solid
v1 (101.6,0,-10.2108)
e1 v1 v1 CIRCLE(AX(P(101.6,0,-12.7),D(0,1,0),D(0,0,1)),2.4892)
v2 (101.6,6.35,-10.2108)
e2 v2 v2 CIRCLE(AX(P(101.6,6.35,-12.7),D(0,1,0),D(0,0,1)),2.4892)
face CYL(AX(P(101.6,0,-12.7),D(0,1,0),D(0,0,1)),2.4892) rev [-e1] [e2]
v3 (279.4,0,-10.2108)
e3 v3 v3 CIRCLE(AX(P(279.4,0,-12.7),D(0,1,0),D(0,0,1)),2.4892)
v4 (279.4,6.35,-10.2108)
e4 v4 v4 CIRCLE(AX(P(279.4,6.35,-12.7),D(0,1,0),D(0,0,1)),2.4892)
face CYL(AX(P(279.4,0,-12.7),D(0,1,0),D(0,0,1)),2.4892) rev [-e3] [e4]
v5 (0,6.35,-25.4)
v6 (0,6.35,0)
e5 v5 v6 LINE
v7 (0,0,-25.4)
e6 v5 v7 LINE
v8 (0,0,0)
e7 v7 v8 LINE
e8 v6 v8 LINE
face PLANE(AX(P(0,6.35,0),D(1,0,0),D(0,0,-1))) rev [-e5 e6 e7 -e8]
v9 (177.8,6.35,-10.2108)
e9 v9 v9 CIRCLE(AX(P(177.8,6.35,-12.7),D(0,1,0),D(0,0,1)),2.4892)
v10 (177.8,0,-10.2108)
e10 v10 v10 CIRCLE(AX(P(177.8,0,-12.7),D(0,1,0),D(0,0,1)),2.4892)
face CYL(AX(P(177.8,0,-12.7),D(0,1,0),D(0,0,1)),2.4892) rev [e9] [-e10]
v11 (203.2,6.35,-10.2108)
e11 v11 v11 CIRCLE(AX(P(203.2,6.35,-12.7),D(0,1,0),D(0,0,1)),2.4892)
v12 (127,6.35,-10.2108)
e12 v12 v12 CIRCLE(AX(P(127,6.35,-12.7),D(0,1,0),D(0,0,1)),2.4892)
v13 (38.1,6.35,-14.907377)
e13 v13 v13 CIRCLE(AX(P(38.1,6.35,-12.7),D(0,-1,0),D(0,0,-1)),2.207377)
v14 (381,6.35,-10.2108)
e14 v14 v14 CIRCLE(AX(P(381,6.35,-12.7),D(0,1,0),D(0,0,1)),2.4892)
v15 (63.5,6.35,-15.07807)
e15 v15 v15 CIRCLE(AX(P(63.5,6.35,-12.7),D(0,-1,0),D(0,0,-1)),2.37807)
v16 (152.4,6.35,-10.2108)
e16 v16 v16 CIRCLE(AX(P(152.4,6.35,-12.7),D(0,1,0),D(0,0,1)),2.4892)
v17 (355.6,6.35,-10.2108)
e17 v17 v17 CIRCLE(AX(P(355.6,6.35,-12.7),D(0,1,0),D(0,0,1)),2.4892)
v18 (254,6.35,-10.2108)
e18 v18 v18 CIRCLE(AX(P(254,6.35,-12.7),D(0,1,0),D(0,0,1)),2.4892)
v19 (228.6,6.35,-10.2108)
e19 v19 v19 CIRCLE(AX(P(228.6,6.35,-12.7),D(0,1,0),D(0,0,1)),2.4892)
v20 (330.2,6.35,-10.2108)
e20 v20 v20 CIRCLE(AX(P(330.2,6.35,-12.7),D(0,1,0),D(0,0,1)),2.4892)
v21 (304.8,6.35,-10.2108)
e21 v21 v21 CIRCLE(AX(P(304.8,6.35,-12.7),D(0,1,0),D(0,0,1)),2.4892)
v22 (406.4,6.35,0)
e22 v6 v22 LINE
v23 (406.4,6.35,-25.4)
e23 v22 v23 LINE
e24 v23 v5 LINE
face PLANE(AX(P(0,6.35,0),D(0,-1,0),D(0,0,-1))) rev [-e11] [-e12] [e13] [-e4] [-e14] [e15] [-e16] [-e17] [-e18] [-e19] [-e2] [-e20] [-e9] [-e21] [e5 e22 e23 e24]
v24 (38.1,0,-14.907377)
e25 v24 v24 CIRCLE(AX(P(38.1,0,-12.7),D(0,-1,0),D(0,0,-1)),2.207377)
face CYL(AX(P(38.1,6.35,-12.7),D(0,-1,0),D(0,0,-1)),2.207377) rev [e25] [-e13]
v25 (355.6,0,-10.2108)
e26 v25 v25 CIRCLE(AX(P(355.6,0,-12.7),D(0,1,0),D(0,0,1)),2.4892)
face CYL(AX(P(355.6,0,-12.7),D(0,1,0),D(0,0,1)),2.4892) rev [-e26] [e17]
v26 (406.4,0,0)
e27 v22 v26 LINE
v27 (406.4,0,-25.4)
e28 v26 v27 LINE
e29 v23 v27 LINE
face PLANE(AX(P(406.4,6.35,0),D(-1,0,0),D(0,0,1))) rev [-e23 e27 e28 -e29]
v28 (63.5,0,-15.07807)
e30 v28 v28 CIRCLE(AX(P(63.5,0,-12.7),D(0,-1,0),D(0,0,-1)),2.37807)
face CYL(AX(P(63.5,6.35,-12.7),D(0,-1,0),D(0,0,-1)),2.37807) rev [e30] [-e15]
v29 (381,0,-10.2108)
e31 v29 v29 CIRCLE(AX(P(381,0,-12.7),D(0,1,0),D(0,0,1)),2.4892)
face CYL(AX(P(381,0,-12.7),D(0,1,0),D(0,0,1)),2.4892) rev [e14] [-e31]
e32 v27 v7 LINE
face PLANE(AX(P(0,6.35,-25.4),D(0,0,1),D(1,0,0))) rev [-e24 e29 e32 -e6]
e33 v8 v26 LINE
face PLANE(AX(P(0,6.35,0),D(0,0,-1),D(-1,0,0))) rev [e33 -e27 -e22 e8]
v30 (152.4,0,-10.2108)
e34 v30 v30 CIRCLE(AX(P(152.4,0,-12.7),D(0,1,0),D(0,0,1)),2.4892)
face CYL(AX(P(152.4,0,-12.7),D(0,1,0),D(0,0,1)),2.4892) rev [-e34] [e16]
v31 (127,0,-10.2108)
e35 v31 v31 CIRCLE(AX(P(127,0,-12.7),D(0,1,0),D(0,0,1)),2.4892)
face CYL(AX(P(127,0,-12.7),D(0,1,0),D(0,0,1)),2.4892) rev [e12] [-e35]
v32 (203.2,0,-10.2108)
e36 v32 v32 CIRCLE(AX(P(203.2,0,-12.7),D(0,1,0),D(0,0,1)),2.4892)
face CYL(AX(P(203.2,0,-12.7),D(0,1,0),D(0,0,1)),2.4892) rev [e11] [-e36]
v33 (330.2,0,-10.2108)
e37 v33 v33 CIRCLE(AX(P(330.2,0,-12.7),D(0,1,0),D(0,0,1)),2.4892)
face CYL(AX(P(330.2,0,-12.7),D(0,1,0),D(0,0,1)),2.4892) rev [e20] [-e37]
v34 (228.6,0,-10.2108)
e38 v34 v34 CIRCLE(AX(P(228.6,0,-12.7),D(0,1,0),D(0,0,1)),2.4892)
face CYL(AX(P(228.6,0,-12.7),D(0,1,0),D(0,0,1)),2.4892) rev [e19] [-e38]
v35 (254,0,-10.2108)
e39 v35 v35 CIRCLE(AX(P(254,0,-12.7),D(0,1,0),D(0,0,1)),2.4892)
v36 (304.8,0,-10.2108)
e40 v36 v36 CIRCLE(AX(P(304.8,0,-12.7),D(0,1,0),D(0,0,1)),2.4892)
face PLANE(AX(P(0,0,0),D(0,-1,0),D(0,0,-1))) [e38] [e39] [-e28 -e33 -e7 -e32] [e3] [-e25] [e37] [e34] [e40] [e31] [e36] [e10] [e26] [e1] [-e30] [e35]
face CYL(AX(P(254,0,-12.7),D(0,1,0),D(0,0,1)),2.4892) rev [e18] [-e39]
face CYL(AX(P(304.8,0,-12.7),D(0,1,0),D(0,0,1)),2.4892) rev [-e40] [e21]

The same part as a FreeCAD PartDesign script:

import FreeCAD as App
import Part
import Sketcher
Q = App.Units.Quantity


def add_polygon(sketch, points):
    """Adds a closed chain of lines whose ends are joined by coincident constraints."""
    first, n = sketch.GeometryCount, len(points)
    for a, b in zip(points, points[1:] + points[:1]):
        sketch.addGeometry(Part.LineSegment(App.Vector(*a, 0), App.Vector(*b, 0)), False)
    for i in range(n):
        sketch.addConstraint(Sketcher.Constraint("Coincident", first + i, 2, first + (i + 1) % n, 1))

doc = App.newDocument("Part")
body = doc.addObject("PartDesign::Body", "Body")

sketch1 = doc.addObject("Sketcher::SketchObject", "Sketch")
body.addObject(sketch1)
sketch1.AttachmentSupport = (doc.XZ_Plane, [""])
sketch1.MapMode = "FlatFace"
add_polygon(sketch1, [(0, -25), (0, 0), (406, 0), (406, -25)])
sketch1.addConstraint(Sketcher.Constraint("Vertical", 0))
sketch1.addConstraint(Sketcher.Constraint("Horizontal", 1))
sketch1.addConstraint(Sketcher.Constraint("Vertical", 2))
sketch1.addConstraint(Sketcher.Constraint("Horizontal", 3))
sketch1.addConstraint(Sketcher.Constraint("Coincident", 0, 2, -1, 1))
sketch1.addConstraint(Sketcher.Constraint("DistanceX", 1, 1, 1, 2, Q("16 in")))
sketch1.addConstraint(Sketcher.Constraint("DistanceY", 0, 1, 0, 2, Q("1 in")))
pad1 = doc.addObject("PartDesign::Pad", "Pad")
body.addObject(pad1)
pad1.Profile = sketch1
pad1.Length = Q("0.25 in")
pad1.Reversed = True

sketch2 = doc.addObject("Sketcher::SketchObject", "Sketch001")
body.addObject(sketch2)
sketch2.AttachmentSupport = (doc.XZ_Plane, [""])
sketch2.MapMode = "FlatFace"
sketch2.AttachmentOffset = App.Placement(App.Vector(0, 0, -0.25 * 25.4), App.Rotation())
sketch2.addGeometry(Part.Circle(App.Vector(381, -12.7, 0), App.Vector(0, 0, 1), 2.5), False)
sketch2.addGeometry(Part.Circle(App.Vector(355.6, -12.7, 0), App.Vector(0, 0, 1), 2.5), False)
sketch2.addGeometry(Part.Circle(App.Vector(330.2, -12.7, 0), App.Vector(0, 0, 1), 2.5), False)
sketch2.addGeometry(Part.Circle(App.Vector(304.8, -12.7, 0), App.Vector(0, 0, 1), 2.5), False)
sketch2.addGeometry(Part.Circle(App.Vector(279.4, -12.7, 0), App.Vector(0, 0, 1), 2.5), False)
sketch2.addGeometry(Part.Circle(App.Vector(254, -12.7, 0), App.Vector(0, 0, 1), 2.5), False)
sketch2.addGeometry(Part.Circle(App.Vector(228.6, -12.7, 0), App.Vector(0, 0, 1), 2.5), False)
sketch2.addGeometry(Part.Circle(App.Vector(203.2, -12.7, 0), App.Vector(0, 0, 1), 2.5), False)
sketch2.addGeometry(Part.Circle(App.Vector(177.8, -12.7, 0), App.Vector(0, 0, 1), 2.5), False)
sketch2.addGeometry(Part.Circle(App.Vector(152.4, -12.7, 0), App.Vector(0, 0, 1), 2.5), False)
sketch2.addGeometry(Part.Circle(App.Vector(127, -12.7, 0), App.Vector(0, 0, 1), 2.5), False)
sketch2.addGeometry(Part.Circle(App.Vector(101.6, -12.7, 0), App.Vector(0, 0, 1), 2.5), False)
sketch2.addConstraint(Sketcher.Constraint("Equal", 0, 1))
sketch2.addConstraint(Sketcher.Constraint("Equal", 1, 2))
sketch2.addConstraint(Sketcher.Constraint("Equal", 2, 3))
sketch2.addConstraint(Sketcher.Constraint("Equal", 3, 4))
sketch2.addConstraint(Sketcher.Constraint("Equal", 4, 5))
sketch2.addConstraint(Sketcher.Constraint("Equal", 5, 6))
sketch2.addConstraint(Sketcher.Constraint("Equal", 6, 7))
sketch2.addConstraint(Sketcher.Constraint("Equal", 7, 8))
sketch2.addConstraint(Sketcher.Constraint("Equal", 8, 9))
sketch2.addConstraint(Sketcher.Constraint("Equal", 9, 10))
sketch2.addConstraint(Sketcher.Constraint("Equal", 10, 11))
sketch2.addConstraint(Sketcher.Constraint("Horizontal", 0, 3, 1, 3))
sketch2.addConstraint(Sketcher.Constraint("Horizontal", 1, 3, 2, 3))
sketch2.addConstraint(Sketcher.Constraint("Horizontal", 2, 3, 3, 3))
sketch2.addConstraint(Sketcher.Constraint("Horizontal", 3, 3, 4, 3))
sketch2.addConstraint(Sketcher.Constraint("Horizontal", 4, 3, 5, 3))
sketch2.addConstraint(Sketcher.Constraint("Horizontal", 5, 3, 6, 3))
sketch2.addConstraint(Sketcher.Constraint("Horizontal", 6, 3, 7, 3))
sketch2.addConstraint(Sketcher.Constraint("Horizontal", 7, 3, 8, 3))
sketch2.addConstraint(Sketcher.Constraint("Horizontal", 8, 3, 9, 3))
sketch2.addConstraint(Sketcher.Constraint("Horizontal", 9, 3, 10, 3))
sketch2.addConstraint(Sketcher.Constraint("Horizontal", 10, 3, 11, 3))
sketch2.addConstraint(Sketcher.Constraint("Diameter", 0, Q("0.196 in")))
sketch2.addConstraint(Sketcher.Constraint("DistanceX", -1, 1, 0, 3, Q("15 in")))
sketch2.addConstraint(Sketcher.Constraint("DistanceX", -1, 1, 1, 3, Q("14 in")))
sketch2.addConstraint(Sketcher.Constraint("DistanceX", -1, 1, 2, 3, Q("13 in")))
sketch2.addConstraint(Sketcher.Constraint("DistanceX", -1, 1, 3, 3, Q("12 in")))
sketch2.addConstraint(Sketcher.Constraint("DistanceX", -1, 1, 4, 3, Q("11 in")))
sketch2.addConstraint(Sketcher.Constraint("DistanceX", -1, 1, 5, 3, Q("10 in")))
sketch2.addConstraint(Sketcher.Constraint("DistanceX", -1, 1, 6, 3, Q("9 in")))
sketch2.addConstraint(Sketcher.Constraint("DistanceX", -1, 1, 7, 3, Q("8 in")))
sketch2.addConstraint(Sketcher.Constraint("DistanceX", -1, 1, 8, 3, Q("7 in")))
sketch2.addConstraint(Sketcher.Constraint("DistanceX", -1, 1, 9, 3, Q("6 in")))
sketch2.addConstraint(Sketcher.Constraint("DistanceX", -1, 1, 10, 3, Q("5 in")))
sketch2.addConstraint(Sketcher.Constraint("DistanceX", -1, 1, 11, 3, Q("4 in")))
sketch2.addConstraint(Sketcher.Constraint("DistanceY", 0, 3, -1, 1, Q("0.5 in")))
pocket1 = doc.addObject("PartDesign::Pocket", "Pocket")
body.addObject(pocket1)
pocket1.Profile = sketch2
pocket1.Type = "ThroughAll"
pocket1.Midplane = True

sketch3 = doc.addObject("Sketcher::SketchObject", "Sketch002")
body.addObject(sketch3)
sketch3.AttachmentSupport = (doc.XZ_Plane, [""])
sketch3.MapMode = "FlatFace"
sketch3.addGeometry(Part.Circle(App.Vector(63.5, -12.7, 0), App.Vector(0, 0, 1), 2.4), False)
sketch3.addGeometry(Part.Circle(App.Vector(38.1, -12.7, 0), App.Vector(0, 0, 1), 2.2), False)
sketch3.addConstraint(Sketcher.Constraint("Horizontal", 0, 3, 1, 3))
sketch3.addConstraint(Sketcher.Constraint("DistanceX", 1, 3, 0, 3, Q("1 in")))
sketch3.addConstraint(Sketcher.Constraint("DistanceX", -1, 1, 0, 3, Q("2.5 in")))
sketch3.addConstraint(Sketcher.Constraint("DistanceY", 0, 3, -1, 1, Q("0.5 in")))
sketch3.addConstraint(Sketcher.Constraint("Diameter", 0, 4.756141))
sketch3.addConstraint(Sketcher.Constraint("Diameter", 1, 4.414754))
pocket2 = doc.addObject("PartDesign::Pocket", "Pocket001")
body.addObject(pocket2)
pocket2.Profile = sketch3
pocket2.Type = "ThroughAll"

doc.recompute()
